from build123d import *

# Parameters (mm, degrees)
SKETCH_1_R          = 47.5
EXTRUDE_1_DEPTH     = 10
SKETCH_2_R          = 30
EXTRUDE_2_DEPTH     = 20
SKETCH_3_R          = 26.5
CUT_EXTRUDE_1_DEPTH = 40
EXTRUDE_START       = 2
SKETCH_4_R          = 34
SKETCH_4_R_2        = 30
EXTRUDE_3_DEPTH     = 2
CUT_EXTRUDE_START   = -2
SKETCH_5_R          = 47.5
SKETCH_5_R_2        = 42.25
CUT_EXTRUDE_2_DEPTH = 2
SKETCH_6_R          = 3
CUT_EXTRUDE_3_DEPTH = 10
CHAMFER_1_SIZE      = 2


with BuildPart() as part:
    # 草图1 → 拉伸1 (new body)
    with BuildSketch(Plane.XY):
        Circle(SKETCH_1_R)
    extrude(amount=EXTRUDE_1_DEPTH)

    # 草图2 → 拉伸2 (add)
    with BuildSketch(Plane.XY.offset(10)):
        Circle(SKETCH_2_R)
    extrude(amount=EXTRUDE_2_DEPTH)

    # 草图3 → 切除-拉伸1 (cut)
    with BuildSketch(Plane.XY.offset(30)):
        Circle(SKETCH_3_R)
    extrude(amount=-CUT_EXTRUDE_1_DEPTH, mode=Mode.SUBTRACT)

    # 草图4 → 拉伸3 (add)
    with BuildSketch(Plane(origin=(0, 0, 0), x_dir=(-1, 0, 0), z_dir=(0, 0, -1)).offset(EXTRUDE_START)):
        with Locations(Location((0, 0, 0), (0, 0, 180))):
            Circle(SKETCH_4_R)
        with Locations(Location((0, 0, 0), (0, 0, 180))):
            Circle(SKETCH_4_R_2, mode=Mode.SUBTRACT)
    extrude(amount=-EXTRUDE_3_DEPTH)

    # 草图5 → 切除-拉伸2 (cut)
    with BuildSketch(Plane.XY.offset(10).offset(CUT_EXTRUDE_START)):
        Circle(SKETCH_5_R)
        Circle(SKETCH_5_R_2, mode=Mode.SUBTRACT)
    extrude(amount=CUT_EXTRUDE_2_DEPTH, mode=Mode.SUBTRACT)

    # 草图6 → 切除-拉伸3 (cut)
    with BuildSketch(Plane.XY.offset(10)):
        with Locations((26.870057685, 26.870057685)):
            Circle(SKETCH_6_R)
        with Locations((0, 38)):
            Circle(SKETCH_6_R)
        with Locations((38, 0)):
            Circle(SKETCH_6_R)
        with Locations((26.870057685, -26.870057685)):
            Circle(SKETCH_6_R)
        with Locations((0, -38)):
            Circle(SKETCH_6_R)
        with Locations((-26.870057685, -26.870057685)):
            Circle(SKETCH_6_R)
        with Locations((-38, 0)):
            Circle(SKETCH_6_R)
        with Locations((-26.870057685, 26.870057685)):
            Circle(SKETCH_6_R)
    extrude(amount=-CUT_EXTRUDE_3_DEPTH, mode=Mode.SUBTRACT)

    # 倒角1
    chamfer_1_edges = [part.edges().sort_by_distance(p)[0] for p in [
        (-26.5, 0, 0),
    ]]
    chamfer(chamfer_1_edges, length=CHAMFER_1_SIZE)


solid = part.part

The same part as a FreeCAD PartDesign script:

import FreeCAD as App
import Part
import Sketcher
Q = App.Units.Quantity


def edges_at(feature, points):
    """Names of the edges that pass closest to the given points."""
    edges = feature.Shape.Edges
    near = lambda p: min(range(len(edges)), key=lambda i: edges[i].distToShape(Part.Vertex(*p))[0])
    return sorted({f"Edge{near(p) + 1}" for p in points})

doc = App.newDocument("Part")
params = doc.addObject("Spreadsheet::Sheet", "Params")
for row, (alias, value) in enumerate([
    ("sketch1_diameter", "95 mm"),
    ("pad1_length", "10 mm"),
    ("sketch2_diameter", "60 mm"),
    ("pad2_length", "20 mm"),
    ("sketch3_diameter", "53 mm"),
    ("pocket1_length", "40 mm"),
    ("sketch4_diameter", "68 mm"),
    ("sketch4_diameter2", "60 mm"),
    ("pad3_length", "2 mm"),
    ("sketch5_diameter", "95 mm"),
    ("sketch5_diameter2", "84.5 mm"),
    ("pocket2_length", "2 mm"),
    ("sketch6_diameter", "6 mm"),
    ("pocket3_length", "10 mm"),
    ("chamfer_size", "2 mm"),
], start=1):
    params.set(f"A{row}", alias)
    params.set(f"B{row}", "=" + value)
    params.setAlias(f"B{row}", alias)

body = doc.addObject("PartDesign::Body", "Body")

sketch1 = body.newObject("Sketcher::SketchObject", "Sketch")
sketch1.AttachmentSupport = (doc.getObject("XY_Plane"), [""])
sketch1.MapMode = "FlatFace"
sketch1.addGeometry(Part.Circle(App.Vector(0, 0, 0), App.Vector(0, 0, 1), 48), False)
sketch1.addConstraint(Sketcher.Constraint("Coincident", 0, 3, -1, 1))
sketch1.addConstraint(Sketcher.Constraint("Diameter", 0, Q("95 mm")))
sketch1.setExpression("Constraints[1]", "Params.sketch1_diameter")
pad1 = body.newObject("PartDesign::Pad", "Pad")
pad1.Profile = sketch1
pad1.setExpression("Length", "Params.pad1_length")

sketch2 = body.newObject("Sketcher::SketchObject", "Sketch001")
sketch2.AttachmentSupport = (doc.getObject("XY_Plane"), [""])
sketch2.MapMode = "FlatFace"
sketch2.AttachmentOffset = App.Placement(App.Vector(0, 0, 10), App.Rotation())
sketch2.addGeometry(Part.Circle(App.Vector(0, 0, 0), App.Vector(0, 0, 1), 30), False)
sketch2.addConstraint(Sketcher.Constraint("Coincident", 0, 3, -1, 1))
sketch2.addConstraint(Sketcher.Constraint("Diameter", 0, Q("60 mm")))
sketch2.setExpression("Constraints[1]", "Params.sketch2_diameter")
pad2 = body.newObject("PartDesign::Pad", "Pad001")
pad2.Profile = sketch2
pad2.setExpression("Length", "Params.pad2_length")

sketch3 = body.newObject("Sketcher::SketchObject", "Sketch002")
sketch3.AttachmentSupport = (doc.getObject("XY_Plane"), [""])
sketch3.MapMode = "FlatFace"
sketch3.AttachmentOffset = App.Placement(App.Vector(0, 0, 30), App.Rotation())
sketch3.addGeometry(Part.Circle(App.Vector(0, 0, 0), App.Vector(0, 0, 1), 26), False)
sketch3.addConstraint(Sketcher.Constraint("Coincident", 0, 3, -1, 1))
sketch3.addConstraint(Sketcher.Constraint("Diameter", 0, Q("53 mm")))
sketch3.setExpression("Constraints[1]", "Params.sketch3_diameter")
pocket1 = body.newObject("PartDesign::Pocket", "Pocket")
pocket1.Profile = sketch3
pocket1.setExpression("Length", "Params.pocket1_length")

sketch4 = body.newObject("Sketcher::SketchObject", "Sketch003")
sketch4.AttachmentSupport = (doc.getObject("XY_Plane"), [""])
sketch4.MapMode = "FlatFace"
sketch4.AttachmentOffset = App.Placement(App.Vector(0, 0, -2), App.Rotation())
sketch4.addGeometry(Part.Circle(App.Vector(0, 0, 0), App.Vector(0, 0, 1), 34), False)
sketch4.addGeometry(Part.Circle(App.Vector(0, 0, 0), App.Vector(0, 0, 1), 30), False)
sketch4.addConstraint(Sketcher.Constraint("Coincident", 0, 3, -1, 1))
sketch4.addConstraint(Sketcher.Constraint("Coincident", 1, 3, -1, 1))
sketch4.addConstraint(Sketcher.Constraint("Diameter", 0, Q("68 mm")))
sketch4.addConstraint(Sketcher.Constraint("Diameter", 1, Q("60 mm")))
sketch4.setExpression("Constraints[2]", "Params.sketch4_diameter")
sketch4.setExpression("Constraints[3]", "Params.sketch4_diameter2")
pad3 = body.newObject("PartDesign::Pad", "Pad002")
pad3.Profile = sketch4
pad3.setExpression("Length", "Params.pad3_length")

sketch5 = body.newObject("Sketcher::SketchObject", "Sketch004")
sketch5.AttachmentSupport = (doc.getObject("XY_Plane"), [""])
sketch5.MapMode = "FlatFace"
sketch5.AttachmentOffset = App.Placement(App.Vector(0, 0, 8), App.Rotation())
sketch5.addGeometry(Part.Circle(App.Vector(0, 0, 0), App.Vector(0, 0, 1), 48), False)
sketch5.addGeometry(Part.Circle(App.Vector(0, 0, 0), App.Vector(0, 0, 1), 42), False)
sketch5.addConstraint(Sketcher.Constraint("Coincident", 0, 3, -1, 1))
sketch5.addConstraint(Sketcher.Constraint("Coincident", 1, 3, -1, 1))
sketch5.addConstraint(Sketcher.Constraint("Diameter", 0, Q("95 mm")))
sketch5.addConstraint(Sketcher.Constraint("Diameter", 1, Q("84.5 mm")))
sketch5.setExpression("Constraints[2]", "Params.sketch5_diameter")
sketch5.setExpression("Constraints[3]", "Params.sketch5_diameter2")
pocket2 = body.newObject("PartDesign::Pocket", "Pocket001")
pocket2.Profile = sketch5
pocket2.setExpression("Length", "Params.pocket2_length")
pocket2.Reversed = True

sketch6 = body.newObject("Sketcher::SketchObject", "Sketch005")
sketch6.AttachmentSupport = (doc.getObject("XY_Plane"), [""])
sketch6.MapMode = "FlatFace"
sketch6.AttachmentOffset = App.Placement(App.Vector(0, 0, 10), App.Rotation())
sketch6.addGeometry(Part.Circle(App.Vector(26.9, 26.9, 0), App.Vector(0, 0, 1), 3), False)
sketch6.addGeometry(Part.Circle(App.Vector(0, 38, 0), App.Vector(0, 0, 1), 3), False)
sketch6.addGeometry(Part.Circle(App.Vector(38, 0, 0), App.Vector(0, 0, 1), 3), False)
sketch6.addGeometry(Part.Circle(App.Vector(26.9, -26.9, 0), App.Vector(0, 0, 1), 3), False)
sketch6.addGeometry(Part.Circle(App.Vector(0, -38, 0), App.Vector(0, 0, 1), 3), False)
sketch6.addGeometry(Part.Circle(App.Vector(-26.9, -26.9, 0), App.Vector(0, 0, 1), 3), False)
sketch6.addGeometry(Part.Circle(App.Vector(-38, 0, 0), App.Vector(0, 0, 1), 3), False)
sketch6.addGeometry(Part.Circle(App.Vector(-26.9, 26.9, 0), App.Vector(0, 0, 1), 3), False)
sketch6.addConstraint(Sketcher.Constraint("Equal", 0, 1))
sketch6.addConstraint(Sketcher.Constraint("Equal", 1, 2))
sketch6.addConstraint(Sketcher.Constraint("Equal", 2, 3))
sketch6.addConstraint(Sketcher.Constraint("Equal", 3, 4))
sketch6.addConstraint(Sketcher.Constraint("Equal", 4, 5))
sketch6.addConstraint(Sketcher.Constraint("Equal", 5, 6))
sketch6.addConstraint(Sketcher.Constraint("Equal", 6, 7))
sketch6.addConstraint(Sketcher.Constraint("Symmetric", 1, 3, 4, 3, -1, 1))
sketch6.addConstraint(Sketcher.Constraint("Symmetric", 0, 3, 5, 3, -1, 1))
sketch6.addConstraint(Sketcher.Constraint("Symmetric", 2, 3, 6, 3, -1, 1))
sketch6.addConstraint(Sketcher.Constraint("Symmetric", 3, 3, 7, 3, -1, 1))
sketch6.addConstraint(Sketcher.Constraint("Symmetric", 3, 3, 5, 3, -2))
sketch6.addConstraint(Sketcher.Constraint("PointOnObject", 1, 3, -2))
sketch6.addConstraint(Sketcher.Constraint("PointOnObject", 2, 3, -1))
sketch6.addConstraint(Sketcher.Constraint("Diameter", 0, Q("6 mm")))
sketch6.addConstraint(Sketcher.Constraint("DistanceY", -1, 1, 1, 3, Q("38 mm")))
sketch6.addConstraint(Sketcher.Constraint("DistanceX", -1, 1, 2, 3, Q("38 mm")))
sketch6.addConstraint(Sketcher.Constraint("DistanceX", -1, 1, 0, 3, Q("26.870058 mm")))
sketch6.addConstraint(Sketcher.Constraint("DistanceY", -1, 1, 0, 3, Q("26.870058 mm")))
sketch6.setExpression("Constraints[14]", "Params.sketch6_diameter")
pocket3 = body.newObject("PartDesign::Pocket", "Pocket002")
pocket3.Profile = sketch6
pocket3.setExpression("Length", "Params.pocket3_length")
doc.recompute()

chamfer = body.newObject("PartDesign::Chamfer", "Chamfer")
chamfer.Base = (pocket3, edges_at(pocket3, [(-26.5, 0, 0)]))
chamfer.setExpression("Size", "Params.chamfer_size")

doc.recompute()
